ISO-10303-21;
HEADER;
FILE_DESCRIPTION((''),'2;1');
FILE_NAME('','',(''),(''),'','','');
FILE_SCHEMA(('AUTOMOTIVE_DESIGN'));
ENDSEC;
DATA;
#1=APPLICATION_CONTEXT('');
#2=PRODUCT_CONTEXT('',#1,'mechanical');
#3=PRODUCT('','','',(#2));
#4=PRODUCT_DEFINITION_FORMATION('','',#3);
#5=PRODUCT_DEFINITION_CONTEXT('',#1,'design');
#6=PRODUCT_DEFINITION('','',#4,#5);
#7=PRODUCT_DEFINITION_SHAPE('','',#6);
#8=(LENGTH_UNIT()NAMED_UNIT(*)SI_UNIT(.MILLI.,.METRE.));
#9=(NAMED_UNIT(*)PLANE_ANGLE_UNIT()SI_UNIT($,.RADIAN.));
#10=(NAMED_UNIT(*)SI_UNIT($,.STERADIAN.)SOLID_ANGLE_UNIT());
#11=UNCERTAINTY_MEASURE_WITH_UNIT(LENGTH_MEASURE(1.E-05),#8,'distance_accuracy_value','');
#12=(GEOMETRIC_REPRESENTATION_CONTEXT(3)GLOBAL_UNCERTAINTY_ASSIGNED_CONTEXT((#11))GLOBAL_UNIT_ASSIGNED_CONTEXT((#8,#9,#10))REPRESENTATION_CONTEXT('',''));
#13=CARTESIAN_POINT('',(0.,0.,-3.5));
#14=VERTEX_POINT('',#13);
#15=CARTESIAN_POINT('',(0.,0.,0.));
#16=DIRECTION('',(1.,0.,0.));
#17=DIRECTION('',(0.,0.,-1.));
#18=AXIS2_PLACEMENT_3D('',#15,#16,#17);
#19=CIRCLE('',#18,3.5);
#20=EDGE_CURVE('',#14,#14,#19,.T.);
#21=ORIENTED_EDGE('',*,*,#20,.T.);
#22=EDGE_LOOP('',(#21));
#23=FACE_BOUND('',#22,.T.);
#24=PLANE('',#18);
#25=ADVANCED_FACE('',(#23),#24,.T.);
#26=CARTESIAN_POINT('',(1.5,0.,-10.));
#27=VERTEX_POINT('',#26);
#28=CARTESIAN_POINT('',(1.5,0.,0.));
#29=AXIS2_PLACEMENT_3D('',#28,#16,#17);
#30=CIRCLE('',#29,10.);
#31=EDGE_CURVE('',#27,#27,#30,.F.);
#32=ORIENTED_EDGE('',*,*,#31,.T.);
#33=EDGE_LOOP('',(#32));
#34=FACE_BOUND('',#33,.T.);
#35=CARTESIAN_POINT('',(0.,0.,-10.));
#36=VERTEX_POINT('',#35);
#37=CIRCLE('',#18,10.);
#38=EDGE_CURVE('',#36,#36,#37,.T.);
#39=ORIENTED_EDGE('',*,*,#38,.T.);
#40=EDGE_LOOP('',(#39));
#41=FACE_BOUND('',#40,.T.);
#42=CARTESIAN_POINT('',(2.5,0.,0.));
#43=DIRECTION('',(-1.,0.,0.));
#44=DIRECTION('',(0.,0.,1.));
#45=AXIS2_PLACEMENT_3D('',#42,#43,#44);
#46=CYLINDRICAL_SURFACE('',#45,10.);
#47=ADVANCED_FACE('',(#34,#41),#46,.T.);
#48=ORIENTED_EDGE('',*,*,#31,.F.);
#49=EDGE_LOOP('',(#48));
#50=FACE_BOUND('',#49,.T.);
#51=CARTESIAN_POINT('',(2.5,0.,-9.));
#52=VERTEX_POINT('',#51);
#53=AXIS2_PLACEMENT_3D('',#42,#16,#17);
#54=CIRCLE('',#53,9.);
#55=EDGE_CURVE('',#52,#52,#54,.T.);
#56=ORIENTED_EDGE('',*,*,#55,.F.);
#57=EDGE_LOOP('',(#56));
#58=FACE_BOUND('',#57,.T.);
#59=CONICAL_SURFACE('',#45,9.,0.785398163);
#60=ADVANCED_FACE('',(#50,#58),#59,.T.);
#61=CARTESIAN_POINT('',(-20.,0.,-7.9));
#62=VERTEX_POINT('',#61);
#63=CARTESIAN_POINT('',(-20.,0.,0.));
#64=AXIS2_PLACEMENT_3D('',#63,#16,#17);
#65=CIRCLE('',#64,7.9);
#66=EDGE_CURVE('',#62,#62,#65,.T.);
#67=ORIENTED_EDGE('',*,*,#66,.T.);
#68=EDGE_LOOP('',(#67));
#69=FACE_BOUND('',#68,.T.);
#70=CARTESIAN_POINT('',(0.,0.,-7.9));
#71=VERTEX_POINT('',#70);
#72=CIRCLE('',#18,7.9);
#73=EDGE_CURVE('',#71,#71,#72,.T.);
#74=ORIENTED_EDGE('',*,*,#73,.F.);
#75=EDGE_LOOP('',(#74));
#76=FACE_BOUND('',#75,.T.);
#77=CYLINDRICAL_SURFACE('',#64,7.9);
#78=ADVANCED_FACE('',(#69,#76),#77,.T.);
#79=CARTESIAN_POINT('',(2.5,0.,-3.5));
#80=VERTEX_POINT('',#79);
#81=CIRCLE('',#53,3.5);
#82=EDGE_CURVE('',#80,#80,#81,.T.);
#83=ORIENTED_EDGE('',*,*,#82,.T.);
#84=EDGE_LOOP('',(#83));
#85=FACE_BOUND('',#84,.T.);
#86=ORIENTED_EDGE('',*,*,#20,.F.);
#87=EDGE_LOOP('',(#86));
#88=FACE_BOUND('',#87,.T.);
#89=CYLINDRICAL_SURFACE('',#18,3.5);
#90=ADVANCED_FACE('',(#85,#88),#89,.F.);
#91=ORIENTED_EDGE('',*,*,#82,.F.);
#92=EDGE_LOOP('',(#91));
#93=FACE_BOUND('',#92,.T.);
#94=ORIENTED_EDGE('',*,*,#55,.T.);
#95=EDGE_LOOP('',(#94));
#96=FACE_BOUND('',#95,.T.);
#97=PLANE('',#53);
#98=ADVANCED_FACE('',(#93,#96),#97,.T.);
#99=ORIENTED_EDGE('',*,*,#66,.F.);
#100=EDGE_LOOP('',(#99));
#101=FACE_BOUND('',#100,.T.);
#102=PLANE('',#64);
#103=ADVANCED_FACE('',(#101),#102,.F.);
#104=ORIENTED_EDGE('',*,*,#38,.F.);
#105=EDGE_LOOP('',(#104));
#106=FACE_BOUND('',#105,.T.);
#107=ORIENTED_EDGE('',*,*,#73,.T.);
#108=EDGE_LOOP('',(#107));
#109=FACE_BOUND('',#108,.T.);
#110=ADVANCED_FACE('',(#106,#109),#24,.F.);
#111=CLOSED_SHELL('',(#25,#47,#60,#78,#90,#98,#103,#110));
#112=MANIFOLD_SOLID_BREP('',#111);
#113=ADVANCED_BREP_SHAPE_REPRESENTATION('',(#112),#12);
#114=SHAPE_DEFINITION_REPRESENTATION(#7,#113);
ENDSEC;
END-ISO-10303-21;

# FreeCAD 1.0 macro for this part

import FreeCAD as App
import Part
import Sketcher
from FreeCAD import Vector
Q = App.Units.Quantity


def edges_at(feature, points):
    """Names of the edges that pass closest to the given points."""
    edges = feature.Shape.Edges
    near = lambda p: min(range(len(edges)), key=lambda i: edges[i].distToShape(Part.Vertex(*p))[0])
    return sorted({f"Edge{near(p) + 1}" for p in points})

doc = App.newDocument("Part")
body = doc.addObject("PartDesign::Body", "Body")

sketch1 = body.newObject("Sketcher::SketchObject", "Sketch")
sketch1.AttachmentSupport = (doc.getObject("YZ_Plane"), [""])
sketch1.MapMode = "FlatFace"
sketch1.addGeometry(Part.Circle(Vector(0, 0, 0), Vector(0, 0, 1), 8), False)
sketch1.addConstraint([
    Sketcher.Constraint("Coincident", 0, 3, -1, 1),
    Sketcher.Constraint("Diameter", 0, Q("15.8 mm")),
])
pad1 = body.newObject("PartDesign::Pad", "Pad")
pad1.Profile = sketch1
pad1.Length = 20
pad1.Reversed = True

sketch2 = body.newObject("Sketcher::SketchObject", "Sketch001")
sketch2.AttachmentSupport = (doc.getObject("YZ_Plane"), [""])
sketch2.MapMode = "FlatFace"
sketch2.addGeometry(Part.Circle(Vector(0, 0, 0), Vector(0, 0, 1), 10), False)
sketch2.addConstraint([
    Sketcher.Constraint("Coincident", 0, 3, -1, 1),
    Sketcher.Constraint("Diameter", 0, Q("20 mm")),
])
pad2 = body.newObject("PartDesign::Pad", "Pad001")
pad2.Profile = sketch2
pad2.Length = 2.5

sketch3 = body.newObject("Sketcher::SketchObject", "Sketch002")
sketch3.AttachmentSupport = (doc.getObject("YZ_Plane"), [""])
sketch3.MapMode = "FlatFace"
sketch3.AttachmentOffset = App.Placement(Vector(0, 0, 2.5), App.Rotation())
sketch3.addGeometry(Part.Circle(Vector(0, 0, 0), Vector(0, 0, 1), 3.5), False)
sketch3.addConstraint([
    Sketcher.Constraint("Coincident", 0, 3, -1, 1),
    Sketcher.Constraint("Diameter", 0, Q("7 mm")),
])
pocket1 = body.newObject("PartDesign::Pocket", "Pocket")
pocket1.Profile = sketch3
pocket1.Length = 2.5
doc.recompute()

chamfer = body.newObject("PartDesign::Chamfer", "Chamfer")
chamfer.Base = (pocket1, edges_at(pocket1, [(2.5, 0, 10)]))
chamfer.Size = 1

doc.recompute()
